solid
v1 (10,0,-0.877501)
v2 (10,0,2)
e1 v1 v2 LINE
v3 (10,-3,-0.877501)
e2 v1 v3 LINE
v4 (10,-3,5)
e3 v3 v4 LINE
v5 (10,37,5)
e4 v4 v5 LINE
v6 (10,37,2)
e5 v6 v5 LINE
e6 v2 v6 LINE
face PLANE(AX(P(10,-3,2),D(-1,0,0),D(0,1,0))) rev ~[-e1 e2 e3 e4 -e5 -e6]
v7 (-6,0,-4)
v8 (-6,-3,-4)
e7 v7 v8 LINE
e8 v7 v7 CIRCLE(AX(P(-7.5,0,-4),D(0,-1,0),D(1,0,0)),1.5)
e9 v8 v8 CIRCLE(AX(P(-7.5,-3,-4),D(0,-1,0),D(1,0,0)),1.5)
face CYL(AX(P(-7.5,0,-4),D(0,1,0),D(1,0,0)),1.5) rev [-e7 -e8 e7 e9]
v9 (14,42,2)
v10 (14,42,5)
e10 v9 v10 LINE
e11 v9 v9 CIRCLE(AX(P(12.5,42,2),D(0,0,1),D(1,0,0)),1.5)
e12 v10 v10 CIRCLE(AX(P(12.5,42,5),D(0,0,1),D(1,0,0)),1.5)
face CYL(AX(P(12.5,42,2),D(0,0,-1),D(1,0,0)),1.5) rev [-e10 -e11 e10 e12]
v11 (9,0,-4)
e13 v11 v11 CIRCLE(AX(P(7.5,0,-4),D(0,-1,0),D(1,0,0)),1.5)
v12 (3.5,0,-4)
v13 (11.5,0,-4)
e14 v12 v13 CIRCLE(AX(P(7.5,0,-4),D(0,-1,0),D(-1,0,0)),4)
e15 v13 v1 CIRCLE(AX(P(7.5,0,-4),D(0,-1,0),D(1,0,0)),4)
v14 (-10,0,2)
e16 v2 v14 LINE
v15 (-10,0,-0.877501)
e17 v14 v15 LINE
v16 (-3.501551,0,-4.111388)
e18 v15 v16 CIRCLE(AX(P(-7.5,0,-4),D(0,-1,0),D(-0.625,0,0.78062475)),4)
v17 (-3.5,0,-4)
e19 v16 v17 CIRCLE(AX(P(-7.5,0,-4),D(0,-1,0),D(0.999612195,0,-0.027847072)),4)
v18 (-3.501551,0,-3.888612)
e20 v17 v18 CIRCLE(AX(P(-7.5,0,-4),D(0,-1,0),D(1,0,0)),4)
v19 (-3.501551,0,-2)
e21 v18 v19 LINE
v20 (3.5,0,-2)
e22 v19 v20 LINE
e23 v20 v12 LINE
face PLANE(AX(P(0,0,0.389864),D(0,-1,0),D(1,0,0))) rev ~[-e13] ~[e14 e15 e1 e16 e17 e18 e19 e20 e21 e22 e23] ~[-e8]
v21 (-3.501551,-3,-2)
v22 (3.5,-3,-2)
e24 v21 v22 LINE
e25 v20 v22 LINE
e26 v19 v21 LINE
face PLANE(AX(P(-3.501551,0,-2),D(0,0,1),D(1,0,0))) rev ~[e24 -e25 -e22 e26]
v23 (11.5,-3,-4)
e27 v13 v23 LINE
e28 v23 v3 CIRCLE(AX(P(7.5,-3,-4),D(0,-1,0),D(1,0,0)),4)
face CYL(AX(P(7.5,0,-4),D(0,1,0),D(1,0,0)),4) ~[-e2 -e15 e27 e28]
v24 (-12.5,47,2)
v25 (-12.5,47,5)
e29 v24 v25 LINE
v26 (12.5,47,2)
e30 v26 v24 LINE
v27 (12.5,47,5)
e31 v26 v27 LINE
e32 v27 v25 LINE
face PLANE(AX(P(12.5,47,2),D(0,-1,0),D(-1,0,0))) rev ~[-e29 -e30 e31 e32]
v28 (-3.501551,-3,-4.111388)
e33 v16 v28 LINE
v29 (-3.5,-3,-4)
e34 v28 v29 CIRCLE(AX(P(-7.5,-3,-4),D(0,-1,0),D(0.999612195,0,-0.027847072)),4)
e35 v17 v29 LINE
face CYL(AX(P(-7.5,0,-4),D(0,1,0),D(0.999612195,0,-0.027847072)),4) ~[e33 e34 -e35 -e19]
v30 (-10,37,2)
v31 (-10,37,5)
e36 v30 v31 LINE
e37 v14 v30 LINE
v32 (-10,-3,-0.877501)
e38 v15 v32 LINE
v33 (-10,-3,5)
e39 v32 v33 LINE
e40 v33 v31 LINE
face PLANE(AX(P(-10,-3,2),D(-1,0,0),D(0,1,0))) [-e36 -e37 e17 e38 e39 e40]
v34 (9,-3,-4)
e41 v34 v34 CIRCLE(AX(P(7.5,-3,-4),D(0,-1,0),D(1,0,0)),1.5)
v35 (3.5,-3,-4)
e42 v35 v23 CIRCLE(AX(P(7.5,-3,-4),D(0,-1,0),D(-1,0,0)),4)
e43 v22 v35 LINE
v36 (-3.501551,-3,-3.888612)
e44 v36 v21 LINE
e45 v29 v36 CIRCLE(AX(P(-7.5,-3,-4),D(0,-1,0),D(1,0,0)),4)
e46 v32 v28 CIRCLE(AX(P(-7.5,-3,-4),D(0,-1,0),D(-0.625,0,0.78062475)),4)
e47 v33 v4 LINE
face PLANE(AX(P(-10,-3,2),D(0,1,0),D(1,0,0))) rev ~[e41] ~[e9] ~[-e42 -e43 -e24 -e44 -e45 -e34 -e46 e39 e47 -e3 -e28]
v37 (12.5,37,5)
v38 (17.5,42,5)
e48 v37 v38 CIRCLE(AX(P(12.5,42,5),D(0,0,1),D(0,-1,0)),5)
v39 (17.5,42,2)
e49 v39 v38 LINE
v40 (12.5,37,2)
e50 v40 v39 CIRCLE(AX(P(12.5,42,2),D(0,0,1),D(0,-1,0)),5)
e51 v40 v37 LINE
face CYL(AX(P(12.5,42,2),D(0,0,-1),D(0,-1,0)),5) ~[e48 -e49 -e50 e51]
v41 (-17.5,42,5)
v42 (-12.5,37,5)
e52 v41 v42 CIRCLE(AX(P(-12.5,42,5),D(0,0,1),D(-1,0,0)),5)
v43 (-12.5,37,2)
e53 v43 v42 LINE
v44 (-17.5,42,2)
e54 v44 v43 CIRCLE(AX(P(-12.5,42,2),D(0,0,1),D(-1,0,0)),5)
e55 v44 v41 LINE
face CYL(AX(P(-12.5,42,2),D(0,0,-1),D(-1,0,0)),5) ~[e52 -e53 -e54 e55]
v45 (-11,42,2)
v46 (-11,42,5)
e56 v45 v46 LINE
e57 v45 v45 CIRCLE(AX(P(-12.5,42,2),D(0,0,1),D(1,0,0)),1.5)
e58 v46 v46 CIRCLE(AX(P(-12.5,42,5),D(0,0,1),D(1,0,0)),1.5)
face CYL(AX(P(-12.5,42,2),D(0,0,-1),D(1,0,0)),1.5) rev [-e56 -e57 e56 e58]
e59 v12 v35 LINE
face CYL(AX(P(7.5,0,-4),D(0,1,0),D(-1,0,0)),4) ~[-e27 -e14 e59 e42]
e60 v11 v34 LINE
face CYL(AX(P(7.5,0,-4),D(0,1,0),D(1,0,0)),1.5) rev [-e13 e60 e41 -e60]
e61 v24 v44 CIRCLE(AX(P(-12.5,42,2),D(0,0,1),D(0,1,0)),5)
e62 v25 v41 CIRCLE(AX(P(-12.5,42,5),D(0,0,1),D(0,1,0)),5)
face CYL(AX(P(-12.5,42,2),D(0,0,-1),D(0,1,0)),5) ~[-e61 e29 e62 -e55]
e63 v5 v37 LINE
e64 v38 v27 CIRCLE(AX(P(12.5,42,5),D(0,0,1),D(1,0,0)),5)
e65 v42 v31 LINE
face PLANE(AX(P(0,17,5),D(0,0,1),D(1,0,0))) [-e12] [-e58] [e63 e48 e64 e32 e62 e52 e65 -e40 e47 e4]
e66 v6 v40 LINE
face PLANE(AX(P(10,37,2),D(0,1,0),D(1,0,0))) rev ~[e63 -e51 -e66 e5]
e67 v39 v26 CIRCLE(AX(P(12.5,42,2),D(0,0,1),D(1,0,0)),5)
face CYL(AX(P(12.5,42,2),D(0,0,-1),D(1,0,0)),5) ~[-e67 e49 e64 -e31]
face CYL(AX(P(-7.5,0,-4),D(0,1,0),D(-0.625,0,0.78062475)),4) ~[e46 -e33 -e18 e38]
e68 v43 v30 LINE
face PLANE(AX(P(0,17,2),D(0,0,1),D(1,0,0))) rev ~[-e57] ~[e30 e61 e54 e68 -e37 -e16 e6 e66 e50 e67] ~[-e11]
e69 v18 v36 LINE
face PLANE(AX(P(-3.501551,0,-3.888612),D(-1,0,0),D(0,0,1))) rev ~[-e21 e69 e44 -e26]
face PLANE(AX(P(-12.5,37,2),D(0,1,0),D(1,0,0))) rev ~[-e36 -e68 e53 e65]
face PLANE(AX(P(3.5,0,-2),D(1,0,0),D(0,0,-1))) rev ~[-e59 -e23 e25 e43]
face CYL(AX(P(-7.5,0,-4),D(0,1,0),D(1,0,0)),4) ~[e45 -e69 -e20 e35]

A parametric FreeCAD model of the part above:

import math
import FreeCAD as App
import Part
import Sketcher

V = App.Vector

doc = App.newDocument("Part")
body = doc.addObject("PartDesign::Body", "Body")

sketch1 = doc.addObject("Sketcher::SketchObject", "Sketch")
body.addObject(sketch1)
sketch1.AttachmentSupport = (doc.XZ_Plane, [""])
sketch1.MapMode = "FlatFace"
sketch1.addGeometry([
    Part.LineSegment(V(10, 2, 0), V(-10, 2, 0)),
    Part.LineSegment(V(-10, 2, 0), V(-10, -0.88, 0)),
    Part.ArcOfCircle(Part.Circle(V(-7.5, -4, 0), V(0, 0, 1), 4), math.radians(129), math.radians(358)),
    Part.ArcOfCircle(Part.Circle(V(-7.5, -4, 0), V(0, 0, 1), 4), math.radians(-1.6), math.radians(0)),
    Part.ArcOfCircle(Part.Circle(V(-7.5, -4, 0), V(0, 0, 1), 4), math.radians(0), math.radians(1.6)),
    Part.LineSegment(V(-3.5, -3.89, 0), V(-3.5, -2, 0)),
    Part.LineSegment(V(-3.5, -2, 0), V(3.5, -2, 0)),
    Part.LineSegment(V(3.5, -2, 0), V(3.5, -4, 0)),
    Part.ArcOfCircle(Part.Circle(V(7.5, -4, 0), V(0, 0, 1), 4), math.radians(180), math.radians(360)),
    Part.ArcOfCircle(Part.Circle(V(7.5, -4, 0), V(0, 0, 1), 4), math.radians(0), math.radians(51)),
    Part.LineSegment(V(10, -0.88, 0), V(10, 2, 0)),
    Part.Circle(V(-7.5, -4, 0), V(0, 0, 1), 1.5),
    Part.Circle(V(7.5, -4, 0), V(0, 0, 1), 1.5),
], False)
sketch1.addConstraint([
    Sketcher.Constraint("Coincident", 0, 2, 1, 1),
    Sketcher.Constraint("Coincident", 1, 2, 2, 1),
    Sketcher.Constraint("Tangent", 2, 2, 3, 1),
    Sketcher.Constraint("Tangent", 3, 2, 4, 1),
    Sketcher.Constraint("Coincident", 4, 2, 5, 1),
    Sketcher.Constraint("Coincident", 5, 2, 6, 1),
    Sketcher.Constraint("Coincident", 6, 2, 7, 1),
    Sketcher.Constraint("Tangent", 7, 2, 8, 1),
    Sketcher.Constraint("Tangent", 8, 2, 9, 1),
    Sketcher.Constraint("Coincident", 9, 2, 10, 1),
    Sketcher.Constraint("Coincident", 10, 2, 0, 1),
    Sketcher.Constraint("Horizontal", 0),
    Sketcher.Constraint("Vertical", 1),
    Sketcher.Constraint("Vertical", 5),
    Sketcher.Constraint("Horizontal", 6),
    Sketcher.Constraint("Vertical", 7),
    Sketcher.Constraint("Vertical", 10),
    Sketcher.Constraint("Coincident", 4, 3, 2, 3),
    Sketcher.Constraint("Coincident", 11, 3, 2, 3),
    Sketcher.Constraint("Coincident", 12, 3, 8, 3),
    Sketcher.Constraint("Equal", 4, 8),
    Sketcher.Constraint("Equal", 8, 9),
    Sketcher.Constraint("Equal", 11, 12),
    Sketcher.Constraint("Symmetric", 2, 3, 8, 3, -2),
    Sketcher.Constraint("Horizontal", 12, 3, 3, 2),
    Sketcher.Constraint("Horizontal", 7, 2, 8, 2),
    Sketcher.Constraint("Horizontal", 1, 2, 9, 2),
    Sketcher.Constraint("Vertical", 2, 2, 4, 2),
    Sketcher.Constraint("Diameter", 11, 3.0),
    Sketcher.Constraint("Radius", 2, 4.0),
    Sketcher.Constraint("DistanceX", 0, 2, 0, 1, 20.0),
    Sketcher.Constraint("DistanceY", 7, 2, 7, 1, 2.0),
    Sketcher.Constraint("DistanceY", 2, 3, -1, 1, 4.0),
    Sketcher.Constraint("DistanceY", -1, 1, 0, 2, 2.0),
    Sketcher.Constraint("DistanceX", 2, 3, 8, 3, 15.0),
    Sketcher.Constraint("DistanceX", 6, 1, 6, 2, 7.001551),
])
pad1 = doc.addObject("PartDesign::Pad", "Pad")
body.addObject(pad1)
pad1.Profile = sketch1
pad1.Length = 3

sketch2 = doc.addObject("Sketcher::SketchObject", "Sketch001")
body.addObject(sketch2)
sketch2.AttachmentSupport = (doc.XY_Plane, [""])
sketch2.MapMode = "FlatFace"
sketch2.AttachmentOffset = App.Placement(V(0, 0, 2), App.Rotation())
sketch2.addGeometry([
    Part.LineSegment(V(-10, 37, 0), V(-10, -3, 0)),
    Part.LineSegment(V(-10, -3, 0), V(10, -3, 0)),
    Part.LineSegment(V(10, -3, 0), V(10, 37, 0)),
    Part.LineSegment(V(10, 37, 0), V(12.5, 37, 0)),
    Part.ArcOfCircle(Part.Circle(V(12.5, 42, 0), V(0, 0, 1), 5), math.radians(-90), math.radians(0)),
    Part.ArcOfCircle(Part.Circle(V(12.5, 42, 0), V(0, 0, 1), 5), math.radians(0), math.radians(90)),
    Part.LineSegment(V(12.5, 47, 0), V(-12.5, 47, 0)),
    Part.ArcOfCircle(Part.Circle(V(-12.5, 42, 0), V(0, 0, 1), 5), math.radians(90), math.radians(180)),
    Part.ArcOfCircle(Part.Circle(V(-12.5, 42, 0), V(0, 0, 1), 5), math.radians(180), math.radians(270)),
    Part.LineSegment(V(-12.5, 37, 0), V(-10, 37, 0)),
    Part.Circle(V(-12.5, 42, 0), V(0, 0, 1), 1.5),
    Part.Circle(V(12.5, 42, 0), V(0, 0, 1), 1.5),
], False)
sketch2.addConstraint([
    Sketcher.Constraint("Coincident", 0, 2, 1, 1),
    Sketcher.Constraint("Coincident", 1, 2, 2, 1),
    Sketcher.Constraint("Coincident", 2, 2, 3, 1),
    Sketcher.Constraint("Tangent", 3, 2, 4, 1),
    Sketcher.Constraint("Tangent", 4, 2, 5, 1),
    Sketcher.Constraint("Tangent", 5, 2, 6, 1),
    Sketcher.Constraint("Tangent", 6, 2, 7, 1),
    Sketcher.Constraint("Tangent", 7, 2, 8, 1),
    Sketcher.Constraint("Tangent", 8, 2, 9, 1),
    Sketcher.Constraint("Coincident", 9, 2, 0, 1),
    Sketcher.Constraint("Vertical", 0),
    Sketcher.Constraint("Horizontal", 1),
    Sketcher.Constraint("Vertical", 2),
    Sketcher.Constraint("Horizontal", 3),
    Sketcher.Constraint("Horizontal", 6),
    Sketcher.Constraint("Horizontal", 9),
    Sketcher.Constraint("Coincident", 10, 3, 7, 3),
    Sketcher.Constraint("Coincident", 11, 3, 4, 3),
    Sketcher.Constraint("Equal", 4, 5),
    Sketcher.Constraint("Equal", 5, 7),
    Sketcher.Constraint("Equal", 7, 8),
    Sketcher.Constraint("Equal", 10, 11),
    Sketcher.Constraint("Symmetric", 4, 2, 7, 2, -2),
    Sketcher.Constraint("Horizontal", 11, 3, 4, 2),
    Sketcher.Constraint("Equal", 3, 9),
    Sketcher.Constraint("Diameter", 10, 3.0),
    Sketcher.Constraint("Radius", 4, 5.0),
    Sketcher.Constraint("DistanceX", 1, 1, 1, 2, 20.0),
    Sketcher.Constraint("DistanceX", 6, 2, 6, 1, 25.0),
    Sketcher.Constraint("DistanceY", 0, 2, 0, 1, 40.0),
    Sketcher.Constraint("DistanceY", -1, 1, 4, 3, 42.0),
])
pad2 = doc.addObject("PartDesign::Pad", "Pad001")
body.addObject(pad2)
pad2.Profile = sketch2
pad2.Length = 3

doc.recompute()
